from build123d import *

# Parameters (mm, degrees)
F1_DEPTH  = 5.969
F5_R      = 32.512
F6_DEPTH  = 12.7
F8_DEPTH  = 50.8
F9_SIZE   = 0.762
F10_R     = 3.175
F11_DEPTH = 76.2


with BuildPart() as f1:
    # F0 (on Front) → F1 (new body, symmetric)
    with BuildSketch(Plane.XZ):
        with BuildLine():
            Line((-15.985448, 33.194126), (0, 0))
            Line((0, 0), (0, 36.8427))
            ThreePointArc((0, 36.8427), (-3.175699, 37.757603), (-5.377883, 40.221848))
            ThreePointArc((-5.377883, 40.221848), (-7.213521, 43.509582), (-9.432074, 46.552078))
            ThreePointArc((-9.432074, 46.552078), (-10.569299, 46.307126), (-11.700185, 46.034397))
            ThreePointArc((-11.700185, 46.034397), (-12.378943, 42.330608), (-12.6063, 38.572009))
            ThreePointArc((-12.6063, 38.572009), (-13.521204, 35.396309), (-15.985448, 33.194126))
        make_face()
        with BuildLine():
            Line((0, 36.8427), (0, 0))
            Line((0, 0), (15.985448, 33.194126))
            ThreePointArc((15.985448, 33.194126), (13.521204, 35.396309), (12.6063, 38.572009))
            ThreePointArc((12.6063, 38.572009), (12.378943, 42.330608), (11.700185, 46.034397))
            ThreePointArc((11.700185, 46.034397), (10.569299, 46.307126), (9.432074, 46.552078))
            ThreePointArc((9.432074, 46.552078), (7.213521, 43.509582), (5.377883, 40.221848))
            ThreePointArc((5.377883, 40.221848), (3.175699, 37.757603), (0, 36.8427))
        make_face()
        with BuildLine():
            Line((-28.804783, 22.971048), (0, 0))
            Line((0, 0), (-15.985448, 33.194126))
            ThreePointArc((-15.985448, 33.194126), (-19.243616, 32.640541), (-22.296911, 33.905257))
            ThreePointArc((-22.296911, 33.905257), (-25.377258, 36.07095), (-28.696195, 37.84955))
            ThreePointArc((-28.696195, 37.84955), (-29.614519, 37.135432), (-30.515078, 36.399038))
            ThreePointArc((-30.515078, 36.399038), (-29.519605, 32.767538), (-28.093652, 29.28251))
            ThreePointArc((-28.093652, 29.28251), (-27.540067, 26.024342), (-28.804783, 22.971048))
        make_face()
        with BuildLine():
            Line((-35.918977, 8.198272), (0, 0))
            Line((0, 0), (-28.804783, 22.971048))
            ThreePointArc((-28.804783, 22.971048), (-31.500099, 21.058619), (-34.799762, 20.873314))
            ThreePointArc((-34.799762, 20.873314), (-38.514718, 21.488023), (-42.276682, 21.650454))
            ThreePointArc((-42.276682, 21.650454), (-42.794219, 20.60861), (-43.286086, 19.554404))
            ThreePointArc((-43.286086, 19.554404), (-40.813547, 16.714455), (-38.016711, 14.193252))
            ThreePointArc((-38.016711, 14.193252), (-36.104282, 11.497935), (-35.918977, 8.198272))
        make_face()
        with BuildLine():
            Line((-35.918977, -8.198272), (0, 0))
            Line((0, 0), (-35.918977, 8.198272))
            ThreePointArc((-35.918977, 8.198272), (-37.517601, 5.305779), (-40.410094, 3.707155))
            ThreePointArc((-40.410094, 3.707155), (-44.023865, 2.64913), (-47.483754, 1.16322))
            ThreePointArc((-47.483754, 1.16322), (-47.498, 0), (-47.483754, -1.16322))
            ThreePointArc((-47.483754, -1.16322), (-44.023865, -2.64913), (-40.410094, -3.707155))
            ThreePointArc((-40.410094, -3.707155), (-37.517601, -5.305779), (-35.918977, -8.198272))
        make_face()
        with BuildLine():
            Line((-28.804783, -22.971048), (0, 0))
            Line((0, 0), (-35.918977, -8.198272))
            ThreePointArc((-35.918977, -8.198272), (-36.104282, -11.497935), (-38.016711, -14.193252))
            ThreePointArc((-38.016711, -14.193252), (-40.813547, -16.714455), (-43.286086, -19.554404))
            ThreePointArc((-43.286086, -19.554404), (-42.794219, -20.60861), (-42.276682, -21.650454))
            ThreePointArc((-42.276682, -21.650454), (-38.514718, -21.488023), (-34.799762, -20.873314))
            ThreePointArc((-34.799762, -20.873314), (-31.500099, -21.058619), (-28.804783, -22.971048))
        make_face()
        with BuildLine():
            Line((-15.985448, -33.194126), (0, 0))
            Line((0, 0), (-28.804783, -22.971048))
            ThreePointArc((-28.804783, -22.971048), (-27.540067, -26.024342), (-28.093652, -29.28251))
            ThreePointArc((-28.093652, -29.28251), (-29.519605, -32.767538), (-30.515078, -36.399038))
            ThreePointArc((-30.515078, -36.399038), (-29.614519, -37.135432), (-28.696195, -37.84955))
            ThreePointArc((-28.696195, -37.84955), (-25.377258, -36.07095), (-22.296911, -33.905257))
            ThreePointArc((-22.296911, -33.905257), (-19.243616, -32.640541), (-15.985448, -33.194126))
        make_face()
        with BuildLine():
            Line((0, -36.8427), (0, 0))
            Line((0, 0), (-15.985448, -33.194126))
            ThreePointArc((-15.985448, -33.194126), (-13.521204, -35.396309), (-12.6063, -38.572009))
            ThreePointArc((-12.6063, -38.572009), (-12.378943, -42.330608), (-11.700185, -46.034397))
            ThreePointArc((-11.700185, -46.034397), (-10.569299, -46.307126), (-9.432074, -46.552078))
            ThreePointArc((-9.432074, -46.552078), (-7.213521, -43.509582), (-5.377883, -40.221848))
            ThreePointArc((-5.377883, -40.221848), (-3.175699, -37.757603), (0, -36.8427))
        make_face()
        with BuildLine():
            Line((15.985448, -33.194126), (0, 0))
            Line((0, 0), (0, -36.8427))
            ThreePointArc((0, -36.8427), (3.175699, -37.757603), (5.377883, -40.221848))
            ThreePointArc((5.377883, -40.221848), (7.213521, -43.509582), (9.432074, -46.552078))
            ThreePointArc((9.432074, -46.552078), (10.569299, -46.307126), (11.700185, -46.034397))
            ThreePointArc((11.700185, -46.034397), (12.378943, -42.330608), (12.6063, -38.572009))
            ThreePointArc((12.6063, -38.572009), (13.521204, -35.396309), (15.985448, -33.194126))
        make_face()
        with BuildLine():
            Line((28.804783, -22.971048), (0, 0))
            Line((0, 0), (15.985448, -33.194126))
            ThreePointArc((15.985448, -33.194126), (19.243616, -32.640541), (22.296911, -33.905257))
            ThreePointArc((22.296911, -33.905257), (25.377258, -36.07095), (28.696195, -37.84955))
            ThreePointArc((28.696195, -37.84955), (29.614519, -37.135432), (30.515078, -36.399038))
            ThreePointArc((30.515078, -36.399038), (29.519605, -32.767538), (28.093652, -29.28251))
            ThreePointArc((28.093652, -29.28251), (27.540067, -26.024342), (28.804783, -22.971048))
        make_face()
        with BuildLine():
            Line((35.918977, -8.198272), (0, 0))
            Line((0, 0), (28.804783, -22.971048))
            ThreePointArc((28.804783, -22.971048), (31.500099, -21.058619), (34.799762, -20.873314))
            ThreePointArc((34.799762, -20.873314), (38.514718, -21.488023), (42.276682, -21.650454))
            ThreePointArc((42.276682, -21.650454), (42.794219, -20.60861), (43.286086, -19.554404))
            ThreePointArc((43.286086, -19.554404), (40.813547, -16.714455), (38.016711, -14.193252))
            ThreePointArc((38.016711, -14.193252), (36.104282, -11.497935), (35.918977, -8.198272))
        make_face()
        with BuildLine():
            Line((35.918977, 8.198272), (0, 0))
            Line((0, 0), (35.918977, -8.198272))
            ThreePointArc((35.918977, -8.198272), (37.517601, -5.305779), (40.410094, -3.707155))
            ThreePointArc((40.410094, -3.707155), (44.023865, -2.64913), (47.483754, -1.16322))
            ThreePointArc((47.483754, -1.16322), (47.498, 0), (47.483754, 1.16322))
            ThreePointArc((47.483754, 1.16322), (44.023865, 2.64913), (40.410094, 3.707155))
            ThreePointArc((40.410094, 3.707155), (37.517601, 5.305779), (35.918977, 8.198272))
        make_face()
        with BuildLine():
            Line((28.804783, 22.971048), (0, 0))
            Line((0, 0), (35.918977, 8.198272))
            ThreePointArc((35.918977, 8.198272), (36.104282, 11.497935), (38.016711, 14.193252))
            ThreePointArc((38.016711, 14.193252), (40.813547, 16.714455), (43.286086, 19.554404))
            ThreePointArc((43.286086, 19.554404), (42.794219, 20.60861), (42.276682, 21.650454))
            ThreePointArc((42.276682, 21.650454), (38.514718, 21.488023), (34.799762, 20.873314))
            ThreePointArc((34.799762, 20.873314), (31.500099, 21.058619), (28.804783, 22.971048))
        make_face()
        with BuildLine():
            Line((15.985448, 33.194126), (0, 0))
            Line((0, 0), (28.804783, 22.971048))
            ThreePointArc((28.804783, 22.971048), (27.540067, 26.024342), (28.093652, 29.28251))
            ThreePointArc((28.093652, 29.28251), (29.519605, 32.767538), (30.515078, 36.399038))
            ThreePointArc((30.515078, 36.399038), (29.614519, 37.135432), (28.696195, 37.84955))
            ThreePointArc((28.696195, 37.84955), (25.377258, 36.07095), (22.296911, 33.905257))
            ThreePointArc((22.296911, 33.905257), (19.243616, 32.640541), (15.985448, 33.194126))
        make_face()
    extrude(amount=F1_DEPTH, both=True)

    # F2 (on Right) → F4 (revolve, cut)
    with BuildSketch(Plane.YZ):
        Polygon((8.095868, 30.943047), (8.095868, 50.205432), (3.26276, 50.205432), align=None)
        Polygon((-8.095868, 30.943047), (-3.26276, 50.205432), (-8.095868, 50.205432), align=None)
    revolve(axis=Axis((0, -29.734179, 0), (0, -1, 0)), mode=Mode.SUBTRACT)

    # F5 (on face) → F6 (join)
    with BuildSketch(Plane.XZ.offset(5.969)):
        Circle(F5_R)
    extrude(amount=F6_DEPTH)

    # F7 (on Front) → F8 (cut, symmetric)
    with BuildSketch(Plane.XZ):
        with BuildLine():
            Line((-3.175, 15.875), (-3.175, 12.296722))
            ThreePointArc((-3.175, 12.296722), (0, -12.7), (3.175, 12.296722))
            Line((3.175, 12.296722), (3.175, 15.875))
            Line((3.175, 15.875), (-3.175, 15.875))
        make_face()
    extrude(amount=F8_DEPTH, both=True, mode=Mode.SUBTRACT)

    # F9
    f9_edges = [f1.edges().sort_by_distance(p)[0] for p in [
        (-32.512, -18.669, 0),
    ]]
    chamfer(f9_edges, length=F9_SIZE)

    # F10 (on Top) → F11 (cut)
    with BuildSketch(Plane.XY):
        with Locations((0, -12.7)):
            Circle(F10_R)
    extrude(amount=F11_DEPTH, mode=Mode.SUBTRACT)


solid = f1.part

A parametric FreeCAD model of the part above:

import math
import FreeCAD as App
import Part
import Sketcher
Q = App.Units.Quantity


def edges_at(feature, points):
    """Names of the edges that pass closest to the given points."""
    edges = feature.Shape.Edges
    near = lambda p: min(range(len(edges)), key=lambda i: edges[i].distToShape(Part.Vertex(*p))[0])
    return sorted({f"Edge{near(p) + 1}" for p in points})

doc = App.newDocument("Part")
body = doc.addObject("PartDesign::Body", "Body")

# Sketch on XZ plane
sketch1 = body.newObject("Sketcher::SketchObject", "Sketch")
sketch1.AttachmentSupport = (doc.getObject("XZ_Plane"), [""])
sketch1.MapMode = "FlatFace"
sketch1.addGeometry([
    Part.ArcOfCircle(Part.Circle(App.Vector(18.575301, 38.57201, 0), App.Vector(0, 0, 1), 5.969001), math.radians(-179.99999), math.radians(-115.714293)),  # 0
    Part.ArcOfCircle(Part.Circle(App.Vector(-18.575249, 38.572018, 0), App.Vector(0, 0, 1), 31.181549), math.radians(-0.000017), math.radians(13.846429)),  # 1
    Part.ArcOfCircle(Part.Circle(App.Vector(-0.000078, -0.000392, 0), App.Vector(0, 0, 1), 47.4984), math.radians(75.739575), math.radians(78.546165)),  # 2
    Part.ArcOfCircle(Part.Circle(App.Vector(33.471579, 26.692628, 0), App.Vector(0, 0, 1), 31.181654), math.radians(140.439301), math.radians(154.2857)),  # 3
    Part.ArcOfCircle(Part.Circle(App.Vector(0, 42.8117, 0), App.Vector(0, 0, 1), 5.969), math.radians(-90.000001), math.radians(-25.714283)),  # 4
    Part.ArcOfCircle(Part.Circle(App.Vector(0, 42.8117, 0), App.Vector(0, 0, 1), 5.969), math.radians(-154.285717), math.radians(-89.999999)),  # 5
    Part.ArcOfCircle(Part.Circle(App.Vector(-33.471579, 26.692628, 0), App.Vector(0, 0, 1), 31.181654), math.radians(25.7143), math.radians(39.560699)),  # 6
    Part.ArcOfCircle(Part.Circle(App.Vector(0.000078, -0.000392, 0), App.Vector(0, 0, 1), 47.4984), math.radians(101.453835), math.radians(104.260425)),  # 7
    Part.ArcOfCircle(Part.Circle(App.Vector(18.575249, 38.572018, 0), App.Vector(0, 0, 1), 31.181549), math.radians(166.153571), math.radians(180.000017)),  # 8
    Part.ArcOfCircle(Part.Circle(App.Vector(-18.575301, 38.57201, 0), App.Vector(0, 0, 1), 5.969001), math.radians(-64.285707), math.radians(-0.00001)),  # 9
    Part.ArcOfCircle(Part.Circle(App.Vector(-18.5753, 38.57201, 0), App.Vector(0, 0, 1), 5.969001), math.radians(-128.571424), math.radians(-64.285717)),  # 10
    Part.ArcOfCircle(Part.Circle(App.Vector(-41.738327, 9.52649, 0), App.Vector(0, 0, 1), 31.181613), math.radians(51.428575), math.radians(65.274993)),  # 11
    Part.ArcOfCircle(Part.Circle(App.Vector(-0.00103, 0.001322, 0), App.Vector(0, 0, 1), 47.496324), math.radians(127.168096), math.radians(129.974808)),  # 12
    Part.ArcOfCircle(Part.Circle(App.Vector(-0.000057, 42.811678, 0), App.Vector(0, 0, 1), 31.181541), math.radians(-168.132156), math.radians(-154.285706)),  # 13
    Part.ArcOfCircle(Part.Circle(App.Vector(-33.471534, 26.692658, 0), App.Vector(0, 0, 1), 5.968999), math.radians(-38.571432), math.radians(25.714289)),  # 14
    Part.ArcOfCircle(Part.Circle(App.Vector(-33.471534, 26.692657, 0), App.Vector(0, 0, 1), 5.968998), math.radians(-102.857148), math.radians(-38.571421)),  # 15
    Part.ArcOfCircle(Part.Circle(App.Vector(-41.73833, -9.526586, 0), App.Vector(0, 0, 1), 31.181688), math.radians(77.142877), math.radians(90.989261)),  # 16
    Part.ArcOfCircle(Part.Circle(App.Vector(-0.000242, 0.000127, 0), App.Vector(0, 0, 1), 47.497726), math.radians(152.88241), math.radians(155.68904)),  # 17
    Part.ArcOfCircle(Part.Circle(App.Vector(-18.575373, 38.571936, 0), App.Vector(0, 0, 1), 31.181499), math.radians(-142.417875), math.radians(-128.571408)),  # 18
    Part.ArcOfCircle(Part.Circle(App.Vector(-41.738323, 9.526499, 0), App.Vector(0, 0, 1), 5.969001), math.radians(-12.857141), math.radians(51.428566)),  # 19
    Part.ArcOfCircle(Part.Circle(App.Vector(-41.73832, 9.526498, 0), App.Vector(0, 0, 1), 5.968998), math.radians(-77.142868), math.radians(-12.857132)),  # 20
    Part.ArcOfCircle(Part.Circle(App.Vector(-33.471509, -26.692729, 0), App.Vector(0, 0, 1), 31.181676), math.radians(102.857161), math.radians(116.70355)),  # 21
    Part.ArcOfCircle(Part.Circle(App.Vector(-0.001028, 0, 0), App.Vector(0, 0, 1), 47.496972), math.radians(178.596663), math.radians(181.403337)),  # 22
    Part.ArcOfCircle(Part.Circle(App.Vector(-33.471509, 26.692729, 0), App.Vector(0, 0, 1), 31.181676), math.radians(-116.70355), math.radians(-102.857161)),  # 23
    Part.ArcOfCircle(Part.Circle(App.Vector(-41.73832, -9.526498, 0), App.Vector(0, 0, 1), 5.968998), math.radians(12.857132), math.radians(77.142868)),  # 24
    Part.ArcOfCircle(Part.Circle(App.Vector(-41.738323, -9.526499, 0), App.Vector(0, 0, 1), 5.969001), math.radians(-51.428566), math.radians(12.857141)),  # 25
    Part.ArcOfCircle(Part.Circle(App.Vector(-18.575373, -38.571936, 0), App.Vector(0, 0, 1), 31.181499), math.radians(128.571408), math.radians(142.417875)),  # 26
    Part.ArcOfCircle(Part.Circle(App.Vector(-0.000242, -0.000127, 0), App.Vector(0, 0, 1), 47.497726), math.radians(-155.68904), math.radians(-152.88241)),  # 27
    Part.ArcOfCircle(Part.Circle(App.Vector(-41.73833, 9.526586, 0), App.Vector(0, 0, 1), 31.181688), math.radians(-90.989261), math.radians(-77.142877)),  # 28
    Part.ArcOfCircle(Part.Circle(App.Vector(-33.471534, -26.692657, 0), App.Vector(0, 0, 1), 5.968998), math.radians(38.571421), math.radians(102.857148)),  # 29
    Part.ArcOfCircle(Part.Circle(App.Vector(-33.471534, -26.692658, 0), App.Vector(0, 0, 1), 5.968999), math.radians(-25.714289), math.radians(38.571432)),  # 30
    Part.ArcOfCircle(Part.Circle(App.Vector(-0.000057, -42.811678, 0), App.Vector(0, 0, 1), 31.181541), math.radians(154.285706), math.radians(168.132156)),  # 31
    Part.ArcOfCircle(Part.Circle(App.Vector(-0.00103, -0.001322, 0), App.Vector(0, 0, 1), 47.496324), math.radians(-129.974808), math.radians(-127.168096)),  # 32
    Part.ArcOfCircle(Part.Circle(App.Vector(-41.738327, -9.52649, 0), App.Vector(0, 0, 1), 31.181613), math.radians(-65.274993), math.radians(-51.428575)),  # 33
    Part.ArcOfCircle(Part.Circle(App.Vector(-18.5753, -38.57201, 0), App.Vector(0, 0, 1), 5.969001), math.radians(64.285717), math.radians(128.571424)),  # 34
    Part.ArcOfCircle(Part.Circle(App.Vector(-18.575301, -38.57201, 0), App.Vector(0, 0, 1), 5.969001), math.radians(0.00001), math.radians(64.285707)),  # 35
    Part.ArcOfCircle(Part.Circle(App.Vector(18.575249, -38.572018, 0), App.Vector(0, 0, 1), 31.181549), math.radians(179.999983), math.radians(193.846429)),  # 36
    Part.ArcOfCircle(Part.Circle(App.Vector(0.000078, 0.000392, 0), App.Vector(0, 0, 1), 47.4984), math.radians(-104.260425), math.radians(-101.453835)),  # 37
    Part.ArcOfCircle(Part.Circle(App.Vector(-33.471579, -26.692628, 0), App.Vector(0, 0, 1), 31.181654), math.radians(-39.560699), math.radians(-25.7143)),  # 38
    Part.ArcOfCircle(Part.Circle(App.Vector(0, -42.8117, 0), App.Vector(0, 0, 1), 5.969), math.radians(89.999999), math.radians(154.285717)),  # 39
    Part.ArcOfCircle(Part.Circle(App.Vector(0, -42.8117, 0), App.Vector(0, 0, 1), 5.969), math.radians(25.714283), math.radians(90.000001)),  # 40
    Part.ArcOfCircle(Part.Circle(App.Vector(33.471579, -26.692628, 0), App.Vector(0, 0, 1), 31.181654), math.radians(-154.2857), math.radians(-140.439301)),  # 41
    Part.ArcOfCircle(Part.Circle(App.Vector(-0.000078, 0.000392, 0), App.Vector(0, 0, 1), 47.4984), math.radians(-78.546165), math.radians(-75.739575)),  # 42
    Part.ArcOfCircle(Part.Circle(App.Vector(-18.575249, -38.572018, 0), App.Vector(0, 0, 1), 31.181549), math.radians(-13.846429), math.radians(0.000017)),  # 43
    Part.ArcOfCircle(Part.Circle(App.Vector(18.575301, -38.57201, 0), App.Vector(0, 0, 1), 5.969001), math.radians(115.714293), math.radians(179.99999)),  # 44
    Part.ArcOfCircle(Part.Circle(App.Vector(18.5753, -38.57201, 0), App.Vector(0, 0, 1), 5.969001), math.radians(51.428576), math.radians(115.714283)),  # 45
    Part.ArcOfCircle(Part.Circle(App.Vector(41.738327, -9.52649, 0), App.Vector(0, 0, 1), 31.181613), math.radians(-128.571425), math.radians(-114.725007)),  # 46
    Part.ArcOfCircle(Part.Circle(App.Vector(0.00103, -0.001322, 0), App.Vector(0, 0, 1), 47.496324), math.radians(-52.831904), math.radians(-50.025192)),  # 47
    Part.ArcOfCircle(Part.Circle(App.Vector(0.000057, -42.811678, 0), App.Vector(0, 0, 1), 31.181541), math.radians(11.867844), math.radians(25.714294)),  # 48
    Part.ArcOfCircle(Part.Circle(App.Vector(33.471534, -26.692658, 0), App.Vector(0, 0, 1), 5.968999), math.radians(141.428568), math.radians(205.714289)),  # 49
    Part.ArcOfCircle(Part.Circle(App.Vector(33.471534, -26.692657, 0), App.Vector(0, 0, 1), 5.968998), math.radians(77.142852), math.radians(141.428579)),  # 50
    Part.ArcOfCircle(Part.Circle(App.Vector(41.73833, 9.526586, 0), App.Vector(0, 0, 1), 31.181688), math.radians(-102.857123), math.radians(-89.010739)),  # 51
    Part.ArcOfCircle(Part.Circle(App.Vector(0.000242, -0.000127, 0), App.Vector(0, 0, 1), 47.497726), math.radians(-27.11759), math.radians(-24.31096)),  # 52
    Part.ArcOfCircle(Part.Circle(App.Vector(18.575373, -38.571936, 0), App.Vector(0, 0, 1), 31.181499), math.radians(37.582125), math.radians(51.428592)),  # 53
    Part.ArcOfCircle(Part.Circle(App.Vector(41.738323, -9.526499, 0), App.Vector(0, 0, 1), 5.969001), math.radians(167.142859), math.radians(231.428566)),  # 54
    Part.ArcOfCircle(Part.Circle(App.Vector(41.73832, -9.526498, 0), App.Vector(0, 0, 1), 5.968998), math.radians(102.857132), math.radians(167.142868)),  # 55
    Part.ArcOfCircle(Part.Circle(App.Vector(33.471509, 26.692729, 0), App.Vector(0, 0, 1), 31.181676), math.radians(-77.142839), math.radians(-63.29645)),  # 56
    Part.ArcOfCircle(Part.Circle(App.Vector(0.001028, 0, 0), App.Vector(0, 0, 1), 47.496972), math.radians(-1.403337), math.radians(1.403337)),  # 57
    Part.ArcOfCircle(Part.Circle(App.Vector(33.471509, -26.692729, 0), App.Vector(0, 0, 1), 31.181676), math.radians(63.29645), math.radians(77.142839)),  # 58
    Part.ArcOfCircle(Part.Circle(App.Vector(41.73832, 9.526498, 0), App.Vector(0, 0, 1), 5.968998), math.radians(-167.142868), math.radians(-102.857132)),  # 59
    Part.ArcOfCircle(Part.Circle(App.Vector(41.738323, 9.526499, 0), App.Vector(0, 0, 1), 5.969001), math.radians(128.571434), math.radians(192.857141)),  # 60
    Part.ArcOfCircle(Part.Circle(App.Vector(18.575373, 38.571936, 0), App.Vector(0, 0, 1), 31.181499), math.radians(-51.428592), math.radians(-37.582125)),  # 61
    Part.ArcOfCircle(Part.Circle(App.Vector(0.000242, 0.000127, 0), App.Vector(0, 0, 1), 47.497726), math.radians(24.31096), math.radians(27.11759)),  # 62
    Part.ArcOfCircle(Part.Circle(App.Vector(41.73833, -9.526586, 0), App.Vector(0, 0, 1), 31.181688), math.radians(89.010739), math.radians(102.857123)),  # 63
    Part.ArcOfCircle(Part.Circle(App.Vector(33.471534, 26.692657, 0), App.Vector(0, 0, 1), 5.968998), math.radians(-141.428579), math.radians(-77.142852)),  # 64
    Part.ArcOfCircle(Part.Circle(App.Vector(33.471534, 26.692658, 0), App.Vector(0, 0, 1), 5.968999), math.radians(154.285711), math.radians(218.571432)),  # 65
    Part.ArcOfCircle(Part.Circle(App.Vector(0.000057, 42.811678, 0), App.Vector(0, 0, 1), 31.181541), math.radians(-25.714294), math.radians(-11.867844)),  # 66
    Part.ArcOfCircle(Part.Circle(App.Vector(0.00103, 0.001322, 0), App.Vector(0, 0, 1), 47.496324), math.radians(50.025192), math.radians(52.831904)),  # 67
    Part.ArcOfCircle(Part.Circle(App.Vector(41.738327, 9.52649, 0), App.Vector(0, 0, 1), 31.181613), math.radians(114.725007), math.radians(128.571425)),  # 68
    Part.ArcOfCircle(Part.Circle(App.Vector(18.5753, 38.57201, 0), App.Vector(0, 0, 1), 5.969001), math.radians(-115.714283), math.radians(-51.428576)),  # 69
], False)
sketch1.addConstraint([
    Sketcher.Constraint("Tangent", 0, 1, 1, 1),
    Sketcher.Constraint("Coincident", 1, 2, 2, 1),
    Sketcher.Constraint("Coincident", 2, 2, 3, 1),
    Sketcher.Constraint("Tangent", 3, 2, 4, 2),
    Sketcher.Constraint("Tangent", 4, 1, 5, 2),
    Sketcher.Constraint("Tangent", 5, 1, 6, 1),
    Sketcher.Constraint("Coincident", 6, 2, 7, 1),
    Sketcher.Constraint("Coincident", 7, 2, 8, 1),
    Sketcher.Constraint("Tangent", 8, 2, 9, 2),
    Sketcher.Constraint("Tangent", 9, 1, 10, 2),
    Sketcher.Constraint("Tangent", 10, 1, 11, 1),
    Sketcher.Constraint("Coincident", 11, 2, 12, 1),
    Sketcher.Constraint("Coincident", 12, 2, 13, 1),
    Sketcher.Constraint("Tangent", 13, 2, 14, 2),
    Sketcher.Constraint("Tangent", 14, 1, 15, 2),
    Sketcher.Constraint("Tangent", 15, 1, 16, 1),
    Sketcher.Constraint("Coincident", 16, 2, 17, 1),
    Sketcher.Constraint("Coincident", 17, 2, 18, 1),
    Sketcher.Constraint("Tangent", 18, 2, 19, 2),
    Sketcher.Constraint("Tangent", 19, 1, 20, 2),
    Sketcher.Constraint("Tangent", 20, 1, 21, 1),
    Sketcher.Constraint("Coincident", 21, 2, 22, 1),
    Sketcher.Constraint("Coincident", 22, 2, 23, 1),
    Sketcher.Constraint("Tangent", 23, 2, 24, 2),
    Sketcher.Constraint("Tangent", 24, 1, 25, 2),
    Sketcher.Constraint("Tangent", 25, 1, 26, 1),
    Sketcher.Constraint("Coincident", 26, 2, 27, 1),
    Sketcher.Constraint("Coincident", 27, 2, 28, 1),
    Sketcher.Constraint("Tangent", 28, 2, 29, 2),
    Sketcher.Constraint("Tangent", 29, 1, 30, 2),
    Sketcher.Constraint("Tangent", 30, 1, 31, 1),
    Sketcher.Constraint("Coincident", 31, 2, 32, 1),
    Sketcher.Constraint("Coincident", 32, 2, 33, 1),
    Sketcher.Constraint("Tangent", 33, 2, 34, 2),
    Sketcher.Constraint("Tangent", 34, 1, 35, 2),
    Sketcher.Constraint("Tangent", 35, 1, 36, 1),
    Sketcher.Constraint("Coincident", 36, 2, 37, 1),
    Sketcher.Constraint("Coincident", 37, 2, 38, 1),
    Sketcher.Constraint("Tangent", 38, 2, 39, 2),
    Sketcher.Constraint("Tangent", 39, 1, 40, 2),
    Sketcher.Constraint("Tangent", 40, 1, 41, 1),
    Sketcher.Constraint("Coincident", 41, 2, 42, 1),
    Sketcher.Constraint("Coincident", 42, 2, 43, 1),
    Sketcher.Constraint("Tangent", 43, 2, 44, 2),
    Sketcher.Constraint("Tangent", 44, 1, 45, 2),
    Sketcher.Constraint("Tangent", 45, 1, 46, 1),
    Sketcher.Constraint("Coincident", 46, 2, 47, 1),
    Sketcher.Constraint("Coincident", 47, 2, 48, 1),
    Sketcher.Constraint("Tangent", 48, 2, 49, 2),
    Sketcher.Constraint("Tangent", 49, 1, 50, 2),
    Sketcher.Constraint("Tangent", 50, 1, 51, 1),
    Sketcher.Constraint("Coincident", 51, 2, 52, 1),
    Sketcher.Constraint("Coincident", 52, 2, 53, 1),
    Sketcher.Constraint("Tangent", 53, 2, 54, 2),
    Sketcher.Constraint("Tangent", 54, 1, 55, 2),
    Sketcher.Constraint("Tangent", 55, 1, 56, 1),
    Sketcher.Constraint("Coincident", 56, 2, 57, 1),
    Sketcher.Constraint("Coincident", 57, 2, 58, 1),
    Sketcher.Constraint("Tangent", 58, 2, 59, 2),
    Sketcher.Constraint("Tangent", 59, 1, 60, 2),
    Sketcher.Constraint("Tangent", 60, 1, 61, 1),
    Sketcher.Constraint("Coincident", 61, 2, 62, 1),
    Sketcher.Constraint("Coincident", 62, 2, 63, 1),
    Sketcher.Constraint("Tangent", 63, 2, 64, 2),
    Sketcher.Constraint("Tangent", 64, 1, 65, 2),
    Sketcher.Constraint("Tangent", 65, 1, 66, 1),
    Sketcher.Constraint("Coincident", 66, 2, 67, 1),
    Sketcher.Constraint("Coincident", 67, 2, 68, 1),
    Sketcher.Constraint("Tangent", 68, 2, 69, 2),
    Sketcher.Constraint("Tangent", 69, 1, 0, 2),
    Sketcher.Constraint("Equal", 0, 4),
    Sketcher.Constraint("Equal", 4, 5),
    Sketcher.Constraint("Equal", 3, 6),
    Sketcher.Constraint("Equal", 2, 7),
    Sketcher.Constraint("Equal", 1, 8),
    Sketcher.Constraint("Equal", 5, 9),
    Sketcher.Constraint("Equal", 9, 10),
    Sketcher.Constraint("Equal", 5, 14),
    Sketcher.Constraint("Equal", 14, 15),
    Sketcher.Constraint("Equal", 10, 19),
    Sketcher.Constraint("Equal", 15, 20),
    Sketcher.Constraint("Equal", 21, 23),
    Sketcher.Constraint("Equal", 20, 24),
    Sketcher.Constraint("Equal", 19, 25),
    Sketcher.Constraint("Equal", 18, 26),
    Sketcher.Constraint("Equal", 17, 27),
    Sketcher.Constraint("Equal", 16, 28),
    Sketcher.Constraint("Equal", 24, 29),
    Sketcher.Constraint("Equal", 29, 30),
    Sketcher.Constraint("Equal", 13, 31),
    Sketcher.Constraint("Equal", 12, 32),
    Sketcher.Constraint("Equal", 11, 33),
    Sketcher.Constraint("Equal", 25, 34),
    Sketcher.Constraint("Equal", 34, 35),
    Sketcher.Constraint("Equal", 8, 36),
    Sketcher.Constraint("Equal", 7, 37),
    Sketcher.Constraint("Equal", 6, 38),
    Sketcher.Constraint("Equal", 35, 39),
    Sketcher.Constraint("Equal", 39, 40),
    Sketcher.Constraint("Equal", 38, 41),
    Sketcher.Constraint("Equal", 37, 42),
    Sketcher.Constraint("Equal", 36, 43),
    Sketcher.Constraint("Equal", 40, 44),
    Sketcher.Constraint("Equal", 44, 45),
    Sketcher.Constraint("Equal", 33, 46),
    Sketcher.Constraint("Equal", 32, 47),
    Sketcher.Constraint("Equal", 31, 48),
    Sketcher.Constraint("Equal", 40, 49),
    Sketcher.Constraint("Equal", 49, 50),
    Sketcher.Constraint("Equal", 28, 51),
    Sketcher.Constraint("Equal", 27, 52),
    Sketcher.Constraint("Equal", 26, 53),
    Sketcher.Constraint("Equal", 45, 54),
    Sketcher.Constraint("Equal", 50, 55),
    Sketcher.Constraint("Equal", 23, 56),
    Sketcher.Constraint("Equal", 22, 57),
    Sketcher.Constraint("Equal", 56, 58),
    Sketcher.Constraint("Equal", 55, 59),
    Sketcher.Constraint("Equal", 54, 60),
    Sketcher.Constraint("Equal", 53, 61),
    Sketcher.Constraint("Equal", 52, 62),
    Sketcher.Constraint("Equal", 51, 63),
    Sketcher.Constraint("Equal", 59, 64),
    Sketcher.Constraint("Equal", 64, 65),
    Sketcher.Constraint("Equal", 48, 66),
    Sketcher.Constraint("Equal", 47, 67),
    Sketcher.Constraint("Equal", 46, 68),
    Sketcher.Constraint("Equal", 60, 69),
    Sketcher.Constraint("Symmetric", 0, 3, 34, 3, -1, 1),
    Sketcher.Constraint("Symmetric", 2, 3, 37, 3, -1, 1),
    Sketcher.Constraint("Symmetric", 3, 3, 38, 3, -1, 1),
    Sketcher.Constraint("Symmetric", 6, 3, 41, 3, -1, 1),
    Sketcher.Constraint("Symmetric", 7, 3, 42, 3, -1, 1),
    Sketcher.Constraint("Symmetric", 8, 3, 43, 3, -1, 1),
    Sketcher.Constraint("Symmetric", 11, 3, 46, 3, -1, 1),
    Sketcher.Constraint("Symmetric", 12, 3, 47, 3, -1, 1),
    Sketcher.Constraint("Symmetric", 13, 3, 48, 3, -1, 1),
    Sketcher.Constraint("Symmetric", 16, 3, 51, 3, -1, 1),
    Sketcher.Constraint("Symmetric", 17, 3, 52, 3, -1, 1),
    Sketcher.Constraint("Symmetric", 18, 3, 53, 3, -1, 1),
    Sketcher.Constraint("Symmetric", 21, 3, 56, 3, -1, 1),
    Sketcher.Constraint("Symmetric", 22, 3, 57, 3, -1, 1),
    Sketcher.Constraint("Symmetric", 23, 3, 58, 3, -1, 1),
    Sketcher.Constraint("Symmetric", 26, 3, 61, 3, -1, 1),
    Sketcher.Constraint("Symmetric", 27, 3, 62, 3, -1, 1),
    Sketcher.Constraint("Symmetric", 28, 3, 63, 3, -1, 1),
    Sketcher.Constraint("Symmetric", 31, 3, 66, 3, -1, 1),
    Sketcher.Constraint("Symmetric", 32, 3, 67, 3, -1, 1),
    Sketcher.Constraint("Symmetric", 3, 3, 6, 3, -2),
    Sketcher.Constraint("Symmetric", 2, 3, 7, 3, -2),
    Sketcher.Constraint("Symmetric", 1, 3, 8, 3, -2),
    Sketcher.Constraint("Symmetric", 33, 3, 46, 3, -2),
    Sketcher.Constraint("Symmetric", 32, 3, 47, 3, -2),
    Sketcher.Constraint("Symmetric", 31, 3, 48, 3, -2),
    Sketcher.Constraint("Symmetric", 28, 3, 51, 3, -2),
    Sketcher.Constraint("Symmetric", 27, 3, 52, 3, -2),
    Sketcher.Constraint("Symmetric", 26, 3, 53, 3, -2),
    Sketcher.Constraint("Symmetric", 23, 3, 56, 3, -2),
    Sketcher.Constraint("PointOnObject", 22, 3, -1),
    Sketcher.Constraint("PointOnObject", 4, 1, -2),
    Sketcher.Constraint("PointOnObject", 39, 1, -2),
    Sketcher.Constraint("Horizontal", 36, 3, 43, 3),
    Sketcher.Constraint("Horizontal", 11, 3, 68, 3),
    Sketcher.Constraint("Horizontal", 69, 3, 0, 1),
    Sketcher.Constraint("Horizontal", 34, 1, 44, 1),
    Sketcher.Constraint("Horizontal", 29, 1, 49, 1),
    Sketcher.Constraint("Horizontal", 24, 1, 54, 1),
    Sketcher.Constraint("Horizontal", 19, 1, 59, 1),
    Sketcher.Constraint("Horizontal", 14, 1, 64, 1),
    Sketcher.Constraint("Horizontal", 9, 1, 69, 1),
    Sketcher.Constraint("Vertical", 12, 3, 22, 3),
    Sketcher.Constraint("Vertical", 19, 1, 24, 1),
    Sketcher.Constraint("Vertical", 14, 1, 29, 1),
    Sketcher.Constraint("Vertical", 9, 1, 34, 1),
    Sketcher.Constraint("Radius", 0, Q("0.2350001 in")),
    Sketcher.Constraint("Radius", 2, 47.4984),
    Sketcher.Constraint("Radius", 18, 31.181499),
    Sketcher.Constraint("Radius", 1, 31.181549),
    Sketcher.Constraint("Radius", 13, 31.181541),
    Sketcher.Constraint("Radius", 16, 31.181688),
    Sketcher.Constraint("Radius", 22, 47.496972),
    Sketcher.Constraint("DistanceY", -1, 1, 4, 3, Q("1.6855 in")),
    Sketcher.Constraint("Radius", 3, 31.181654),
    Sketcher.Constraint("Radius", 11, 31.181613),
    Sketcher.Constraint("Radius", 12, 47.496324),
    Sketcher.Constraint("Radius", 17, 47.497726),
    Sketcher.Constraint("Radius", 21, 31.181676),
    Sketcher.Constraint("DistanceX", -1, 1, 0, 3, 18.575301),
    Sketcher.Constraint("DistanceY", -1, 1, 19, 3, 9.526499),
    Sketcher.Constraint("DistanceY", -1, 1, 0, 3, 38.57201),
    Sketcher.Constraint("DistanceX", -1, 1, 3, 3, 33.471579),
    Sketcher.Constraint("DistanceY", -1, 1, 11, 3, 9.52649),
    Sketcher.Constraint("DistanceX", 12, 3, -1, 1, 0.00103),
    Sketcher.Constraint("DistanceY", -1, 1, 14, 3, 26.692658),
    Sketcher.Constraint("DistanceX", 16, 3, -1, 1, 41.73833),
    Sketcher.Constraint("DistanceX", 20, 3, -1, 1, 41.73832),
    Sketcher.Constraint("DistanceX", 21, 3, -1, 1, 33.471509),
    Sketcher.Constraint("DistanceY", -1, 1, 2, 2, 46.552078),
    Sketcher.Constraint("DistanceX", 9, 1, -1, 1, 15.985448),
    Sketcher.Constraint("DistanceY", -1, 1, 11, 2, 37.84955),
    Sketcher.Constraint("DistanceX", 12, 2, -1, 1, 30.515078),
    Sketcher.Constraint("DistanceY", -1, 1, 13, 2, 29.28251),
    Sketcher.Constraint("DistanceX", 18, 2, -1, 1, 38.016711),
    Sketcher.Constraint("DistanceY", -1, 1, 19, 1, 8.198272),
    Sketcher.Constraint("DistanceX", 27, 2, -1, 1, 42.276682),
    Sketcher.Constraint("DistanceY", 2, 3, -1, 1, 0.000392),
    Sketcher.Constraint("DistanceX", 17, 3, -1, 1, 0.000242),
    Sketcher.Constraint("DistanceX", 14, 1, -1, 1, 28.804783),
])
pad1 = body.newObject("PartDesign::Pad", "Pad")
pad1.Profile = sketch1
pad1.Length = Q("0.47 in")
pad1.Midplane = True

# Sketch on YZ plane
sketch2 = body.newObject("Sketcher::SketchObject", "Sketch001")
sketch2.AttachmentSupport = (doc.getObject("YZ_Plane"), [""])
sketch2.MapMode = "FlatFace"
sketch2.addGeometry([
    Part.LineSegment(App.Vector(8.1, 30.9, 0), App.Vector(8.1, 50.2, 0)),  # 0
    Part.LineSegment(App.Vector(8.1, 50.2, 0), App.Vector(3.3, 50.2, 0)),  # 1
    Part.LineSegment(App.Vector(3.3, 50.2, 0), App.Vector(8.1, 30.9, 0)),  # 2
    Part.LineSegment(App.Vector(-8.1, 30.9, 0), App.Vector(-3.3, 50.2, 0)),  # 3
    Part.LineSegment(App.Vector(-3.3, 50.2, 0), App.Vector(-8.1, 50.2, 0)),  # 4
    Part.LineSegment(App.Vector(-8.1, 50.2, 0), App.Vector(-8.1, 30.9, 0)),  # 5
], False)
sketch2.addConstraint([
    Sketcher.Constraint("Coincident", 0, 2, 1, 1),
    Sketcher.Constraint("Coincident", 1, 2, 2, 1),
    Sketcher.Constraint("Coincident", 2, 2, 0, 1),
    Sketcher.Constraint("Coincident", 3, 2, 4, 1),
    Sketcher.Constraint("Coincident", 4, 2, 5, 1),
    Sketcher.Constraint("Coincident", 5, 2, 3, 1),
    Sketcher.Constraint("Vertical", 0),
    Sketcher.Constraint("Horizontal", 1),
    Sketcher.Constraint("Horizontal", 4),
    Sketcher.Constraint("Vertical", 5),
    Sketcher.Constraint("Symmetric", 1, 2, 3, 2, -2),
    Sketcher.Constraint("Symmetric", 2, 2, 5, 2, -2),
    Sketcher.Constraint("DistanceX", 1, 2, 1, 1, 4.833108),
    Sketcher.Constraint("DistanceY", 0, 1, 0, 2, 19.262385),
    Sketcher.Constraint("DistanceX", -1, 1, 1, 2, 3.26276),
    Sketcher.Constraint("DistanceY", -1, 1, 0, 2, 50.205432),
])
groove = body.newObject("PartDesign::Groove", "Groove")
groove.Profile = sketch2
groove.ReferenceAxis = (sketch2, ["H_Axis"])
groove.Angle = 360

# Sketch on XZ plane
sketch3 = body.newObject("Sketcher::SketchObject", "Sketch002")
sketch3.AttachmentSupport = (doc.getObject("XZ_Plane"), [""])
sketch3.MapMode = "FlatFace"
sketch3.AttachmentOffset = App.Placement(App.Vector(0, 0, 0.235 * 25.4), App.Rotation())
sketch3.addGeometry(Part.Circle(App.Vector(0, 0, 0), App.Vector(0, 0, 1), 33), False)
sketch3.addConstraint([
    Sketcher.Constraint("Coincident", 0, 3, -1, 1),
    Sketcher.Constraint("Diameter", 0, Q("2.56 in")),
])
pad2 = body.newObject("PartDesign::Pad", "Pad001")
pad2.Profile = sketch3
pad2.Length = Q("0.5 in")

# Sketch on XZ plane
sketch4 = body.newObject("Sketcher::SketchObject", "Sketch003")
sketch4.AttachmentSupport = (doc.getObject("XZ_Plane"), [""])
sketch4.MapMode = "FlatFace"
sketch4.addGeometry([
    Part.LineSegment(App.Vector(-3.2, 15.9, 0), App.Vector(-3.2, 12.3, 0)),
    Part.ArcOfCircle(Part.Circle(App.Vector(0, 0, 0), App.Vector(0, 0, 1), 12.7), math.radians(104), math.radians(436)),
    Part.LineSegment(App.Vector(3.2, 12.3, 0), App.Vector(3.2, 15.9, 0)),
    Part.LineSegment(App.Vector(3.2, 15.9, 0), App.Vector(-3.2, 15.9, 0)),
], False)
sketch4.addConstraint([
    Sketcher.Constraint("Coincident", 0, 2, 1, 1),
    Sketcher.Constraint("Coincident", 1, 2, 2, 1),
    Sketcher.Constraint("Coincident", 2, 2, 3, 1),
    Sketcher.Constraint("Coincident", 3, 2, 0, 1),
    Sketcher.Constraint("Vertical", 0),
    Sketcher.Constraint("Vertical", 2),
    Sketcher.Constraint("Horizontal", 3),
    Sketcher.Constraint("Coincident", 1, 3, -1, 1),
    Sketcher.Constraint("Horizontal", 0, 2, 1, 2),
    Sketcher.Constraint("Radius", 1, Q("0.5 in")),
    Sketcher.Constraint("DistanceX", 3, 2, 3, 1, Q("0.25 in")),
    Sketcher.Constraint("DistanceY", -1, 1, 2, 2, Q("0.625 in")),
])
pocket1 = body.newObject("PartDesign::Pocket", "Pocket")
pocket1.Profile = sketch4
pocket1.Length = Q("4 in")
pocket1.Midplane = True
doc.recompute()

chamfer = body.newObject("PartDesign::Chamfer", "Chamfer")
chamfer.Base = (pocket1, edges_at(pocket1, [(-32.512, -18.669, 0)]))
chamfer.Size = Q("0.03 in")

# Sketch on XY plane
sketch5 = body.newObject("Sketcher::SketchObject", "Sketch004")
sketch5.AttachmentSupport = (doc.getObject("XY_Plane"), [""])
sketch5.MapMode = "FlatFace"
sketch5.addGeometry(Part.Circle(App.Vector(0, -12.7, 0), App.Vector(0, 0, 1), 3.2), False)
sketch5.addConstraint([
    Sketcher.Constraint("PointOnObject", 0, 3, -2),
    Sketcher.Constraint("Diameter", 0, Q("0.25 in")),
    Sketcher.Constraint("DistanceY", 0, 3, -1, 1, Q("0.5 in")),
])
pocket2 = body.newObject("PartDesign::Pocket", "Pocket001")
pocket2.Profile = sketch5
pocket2.Length = Q("3 in")
pocket2.Reversed = True

doc.recompute()
